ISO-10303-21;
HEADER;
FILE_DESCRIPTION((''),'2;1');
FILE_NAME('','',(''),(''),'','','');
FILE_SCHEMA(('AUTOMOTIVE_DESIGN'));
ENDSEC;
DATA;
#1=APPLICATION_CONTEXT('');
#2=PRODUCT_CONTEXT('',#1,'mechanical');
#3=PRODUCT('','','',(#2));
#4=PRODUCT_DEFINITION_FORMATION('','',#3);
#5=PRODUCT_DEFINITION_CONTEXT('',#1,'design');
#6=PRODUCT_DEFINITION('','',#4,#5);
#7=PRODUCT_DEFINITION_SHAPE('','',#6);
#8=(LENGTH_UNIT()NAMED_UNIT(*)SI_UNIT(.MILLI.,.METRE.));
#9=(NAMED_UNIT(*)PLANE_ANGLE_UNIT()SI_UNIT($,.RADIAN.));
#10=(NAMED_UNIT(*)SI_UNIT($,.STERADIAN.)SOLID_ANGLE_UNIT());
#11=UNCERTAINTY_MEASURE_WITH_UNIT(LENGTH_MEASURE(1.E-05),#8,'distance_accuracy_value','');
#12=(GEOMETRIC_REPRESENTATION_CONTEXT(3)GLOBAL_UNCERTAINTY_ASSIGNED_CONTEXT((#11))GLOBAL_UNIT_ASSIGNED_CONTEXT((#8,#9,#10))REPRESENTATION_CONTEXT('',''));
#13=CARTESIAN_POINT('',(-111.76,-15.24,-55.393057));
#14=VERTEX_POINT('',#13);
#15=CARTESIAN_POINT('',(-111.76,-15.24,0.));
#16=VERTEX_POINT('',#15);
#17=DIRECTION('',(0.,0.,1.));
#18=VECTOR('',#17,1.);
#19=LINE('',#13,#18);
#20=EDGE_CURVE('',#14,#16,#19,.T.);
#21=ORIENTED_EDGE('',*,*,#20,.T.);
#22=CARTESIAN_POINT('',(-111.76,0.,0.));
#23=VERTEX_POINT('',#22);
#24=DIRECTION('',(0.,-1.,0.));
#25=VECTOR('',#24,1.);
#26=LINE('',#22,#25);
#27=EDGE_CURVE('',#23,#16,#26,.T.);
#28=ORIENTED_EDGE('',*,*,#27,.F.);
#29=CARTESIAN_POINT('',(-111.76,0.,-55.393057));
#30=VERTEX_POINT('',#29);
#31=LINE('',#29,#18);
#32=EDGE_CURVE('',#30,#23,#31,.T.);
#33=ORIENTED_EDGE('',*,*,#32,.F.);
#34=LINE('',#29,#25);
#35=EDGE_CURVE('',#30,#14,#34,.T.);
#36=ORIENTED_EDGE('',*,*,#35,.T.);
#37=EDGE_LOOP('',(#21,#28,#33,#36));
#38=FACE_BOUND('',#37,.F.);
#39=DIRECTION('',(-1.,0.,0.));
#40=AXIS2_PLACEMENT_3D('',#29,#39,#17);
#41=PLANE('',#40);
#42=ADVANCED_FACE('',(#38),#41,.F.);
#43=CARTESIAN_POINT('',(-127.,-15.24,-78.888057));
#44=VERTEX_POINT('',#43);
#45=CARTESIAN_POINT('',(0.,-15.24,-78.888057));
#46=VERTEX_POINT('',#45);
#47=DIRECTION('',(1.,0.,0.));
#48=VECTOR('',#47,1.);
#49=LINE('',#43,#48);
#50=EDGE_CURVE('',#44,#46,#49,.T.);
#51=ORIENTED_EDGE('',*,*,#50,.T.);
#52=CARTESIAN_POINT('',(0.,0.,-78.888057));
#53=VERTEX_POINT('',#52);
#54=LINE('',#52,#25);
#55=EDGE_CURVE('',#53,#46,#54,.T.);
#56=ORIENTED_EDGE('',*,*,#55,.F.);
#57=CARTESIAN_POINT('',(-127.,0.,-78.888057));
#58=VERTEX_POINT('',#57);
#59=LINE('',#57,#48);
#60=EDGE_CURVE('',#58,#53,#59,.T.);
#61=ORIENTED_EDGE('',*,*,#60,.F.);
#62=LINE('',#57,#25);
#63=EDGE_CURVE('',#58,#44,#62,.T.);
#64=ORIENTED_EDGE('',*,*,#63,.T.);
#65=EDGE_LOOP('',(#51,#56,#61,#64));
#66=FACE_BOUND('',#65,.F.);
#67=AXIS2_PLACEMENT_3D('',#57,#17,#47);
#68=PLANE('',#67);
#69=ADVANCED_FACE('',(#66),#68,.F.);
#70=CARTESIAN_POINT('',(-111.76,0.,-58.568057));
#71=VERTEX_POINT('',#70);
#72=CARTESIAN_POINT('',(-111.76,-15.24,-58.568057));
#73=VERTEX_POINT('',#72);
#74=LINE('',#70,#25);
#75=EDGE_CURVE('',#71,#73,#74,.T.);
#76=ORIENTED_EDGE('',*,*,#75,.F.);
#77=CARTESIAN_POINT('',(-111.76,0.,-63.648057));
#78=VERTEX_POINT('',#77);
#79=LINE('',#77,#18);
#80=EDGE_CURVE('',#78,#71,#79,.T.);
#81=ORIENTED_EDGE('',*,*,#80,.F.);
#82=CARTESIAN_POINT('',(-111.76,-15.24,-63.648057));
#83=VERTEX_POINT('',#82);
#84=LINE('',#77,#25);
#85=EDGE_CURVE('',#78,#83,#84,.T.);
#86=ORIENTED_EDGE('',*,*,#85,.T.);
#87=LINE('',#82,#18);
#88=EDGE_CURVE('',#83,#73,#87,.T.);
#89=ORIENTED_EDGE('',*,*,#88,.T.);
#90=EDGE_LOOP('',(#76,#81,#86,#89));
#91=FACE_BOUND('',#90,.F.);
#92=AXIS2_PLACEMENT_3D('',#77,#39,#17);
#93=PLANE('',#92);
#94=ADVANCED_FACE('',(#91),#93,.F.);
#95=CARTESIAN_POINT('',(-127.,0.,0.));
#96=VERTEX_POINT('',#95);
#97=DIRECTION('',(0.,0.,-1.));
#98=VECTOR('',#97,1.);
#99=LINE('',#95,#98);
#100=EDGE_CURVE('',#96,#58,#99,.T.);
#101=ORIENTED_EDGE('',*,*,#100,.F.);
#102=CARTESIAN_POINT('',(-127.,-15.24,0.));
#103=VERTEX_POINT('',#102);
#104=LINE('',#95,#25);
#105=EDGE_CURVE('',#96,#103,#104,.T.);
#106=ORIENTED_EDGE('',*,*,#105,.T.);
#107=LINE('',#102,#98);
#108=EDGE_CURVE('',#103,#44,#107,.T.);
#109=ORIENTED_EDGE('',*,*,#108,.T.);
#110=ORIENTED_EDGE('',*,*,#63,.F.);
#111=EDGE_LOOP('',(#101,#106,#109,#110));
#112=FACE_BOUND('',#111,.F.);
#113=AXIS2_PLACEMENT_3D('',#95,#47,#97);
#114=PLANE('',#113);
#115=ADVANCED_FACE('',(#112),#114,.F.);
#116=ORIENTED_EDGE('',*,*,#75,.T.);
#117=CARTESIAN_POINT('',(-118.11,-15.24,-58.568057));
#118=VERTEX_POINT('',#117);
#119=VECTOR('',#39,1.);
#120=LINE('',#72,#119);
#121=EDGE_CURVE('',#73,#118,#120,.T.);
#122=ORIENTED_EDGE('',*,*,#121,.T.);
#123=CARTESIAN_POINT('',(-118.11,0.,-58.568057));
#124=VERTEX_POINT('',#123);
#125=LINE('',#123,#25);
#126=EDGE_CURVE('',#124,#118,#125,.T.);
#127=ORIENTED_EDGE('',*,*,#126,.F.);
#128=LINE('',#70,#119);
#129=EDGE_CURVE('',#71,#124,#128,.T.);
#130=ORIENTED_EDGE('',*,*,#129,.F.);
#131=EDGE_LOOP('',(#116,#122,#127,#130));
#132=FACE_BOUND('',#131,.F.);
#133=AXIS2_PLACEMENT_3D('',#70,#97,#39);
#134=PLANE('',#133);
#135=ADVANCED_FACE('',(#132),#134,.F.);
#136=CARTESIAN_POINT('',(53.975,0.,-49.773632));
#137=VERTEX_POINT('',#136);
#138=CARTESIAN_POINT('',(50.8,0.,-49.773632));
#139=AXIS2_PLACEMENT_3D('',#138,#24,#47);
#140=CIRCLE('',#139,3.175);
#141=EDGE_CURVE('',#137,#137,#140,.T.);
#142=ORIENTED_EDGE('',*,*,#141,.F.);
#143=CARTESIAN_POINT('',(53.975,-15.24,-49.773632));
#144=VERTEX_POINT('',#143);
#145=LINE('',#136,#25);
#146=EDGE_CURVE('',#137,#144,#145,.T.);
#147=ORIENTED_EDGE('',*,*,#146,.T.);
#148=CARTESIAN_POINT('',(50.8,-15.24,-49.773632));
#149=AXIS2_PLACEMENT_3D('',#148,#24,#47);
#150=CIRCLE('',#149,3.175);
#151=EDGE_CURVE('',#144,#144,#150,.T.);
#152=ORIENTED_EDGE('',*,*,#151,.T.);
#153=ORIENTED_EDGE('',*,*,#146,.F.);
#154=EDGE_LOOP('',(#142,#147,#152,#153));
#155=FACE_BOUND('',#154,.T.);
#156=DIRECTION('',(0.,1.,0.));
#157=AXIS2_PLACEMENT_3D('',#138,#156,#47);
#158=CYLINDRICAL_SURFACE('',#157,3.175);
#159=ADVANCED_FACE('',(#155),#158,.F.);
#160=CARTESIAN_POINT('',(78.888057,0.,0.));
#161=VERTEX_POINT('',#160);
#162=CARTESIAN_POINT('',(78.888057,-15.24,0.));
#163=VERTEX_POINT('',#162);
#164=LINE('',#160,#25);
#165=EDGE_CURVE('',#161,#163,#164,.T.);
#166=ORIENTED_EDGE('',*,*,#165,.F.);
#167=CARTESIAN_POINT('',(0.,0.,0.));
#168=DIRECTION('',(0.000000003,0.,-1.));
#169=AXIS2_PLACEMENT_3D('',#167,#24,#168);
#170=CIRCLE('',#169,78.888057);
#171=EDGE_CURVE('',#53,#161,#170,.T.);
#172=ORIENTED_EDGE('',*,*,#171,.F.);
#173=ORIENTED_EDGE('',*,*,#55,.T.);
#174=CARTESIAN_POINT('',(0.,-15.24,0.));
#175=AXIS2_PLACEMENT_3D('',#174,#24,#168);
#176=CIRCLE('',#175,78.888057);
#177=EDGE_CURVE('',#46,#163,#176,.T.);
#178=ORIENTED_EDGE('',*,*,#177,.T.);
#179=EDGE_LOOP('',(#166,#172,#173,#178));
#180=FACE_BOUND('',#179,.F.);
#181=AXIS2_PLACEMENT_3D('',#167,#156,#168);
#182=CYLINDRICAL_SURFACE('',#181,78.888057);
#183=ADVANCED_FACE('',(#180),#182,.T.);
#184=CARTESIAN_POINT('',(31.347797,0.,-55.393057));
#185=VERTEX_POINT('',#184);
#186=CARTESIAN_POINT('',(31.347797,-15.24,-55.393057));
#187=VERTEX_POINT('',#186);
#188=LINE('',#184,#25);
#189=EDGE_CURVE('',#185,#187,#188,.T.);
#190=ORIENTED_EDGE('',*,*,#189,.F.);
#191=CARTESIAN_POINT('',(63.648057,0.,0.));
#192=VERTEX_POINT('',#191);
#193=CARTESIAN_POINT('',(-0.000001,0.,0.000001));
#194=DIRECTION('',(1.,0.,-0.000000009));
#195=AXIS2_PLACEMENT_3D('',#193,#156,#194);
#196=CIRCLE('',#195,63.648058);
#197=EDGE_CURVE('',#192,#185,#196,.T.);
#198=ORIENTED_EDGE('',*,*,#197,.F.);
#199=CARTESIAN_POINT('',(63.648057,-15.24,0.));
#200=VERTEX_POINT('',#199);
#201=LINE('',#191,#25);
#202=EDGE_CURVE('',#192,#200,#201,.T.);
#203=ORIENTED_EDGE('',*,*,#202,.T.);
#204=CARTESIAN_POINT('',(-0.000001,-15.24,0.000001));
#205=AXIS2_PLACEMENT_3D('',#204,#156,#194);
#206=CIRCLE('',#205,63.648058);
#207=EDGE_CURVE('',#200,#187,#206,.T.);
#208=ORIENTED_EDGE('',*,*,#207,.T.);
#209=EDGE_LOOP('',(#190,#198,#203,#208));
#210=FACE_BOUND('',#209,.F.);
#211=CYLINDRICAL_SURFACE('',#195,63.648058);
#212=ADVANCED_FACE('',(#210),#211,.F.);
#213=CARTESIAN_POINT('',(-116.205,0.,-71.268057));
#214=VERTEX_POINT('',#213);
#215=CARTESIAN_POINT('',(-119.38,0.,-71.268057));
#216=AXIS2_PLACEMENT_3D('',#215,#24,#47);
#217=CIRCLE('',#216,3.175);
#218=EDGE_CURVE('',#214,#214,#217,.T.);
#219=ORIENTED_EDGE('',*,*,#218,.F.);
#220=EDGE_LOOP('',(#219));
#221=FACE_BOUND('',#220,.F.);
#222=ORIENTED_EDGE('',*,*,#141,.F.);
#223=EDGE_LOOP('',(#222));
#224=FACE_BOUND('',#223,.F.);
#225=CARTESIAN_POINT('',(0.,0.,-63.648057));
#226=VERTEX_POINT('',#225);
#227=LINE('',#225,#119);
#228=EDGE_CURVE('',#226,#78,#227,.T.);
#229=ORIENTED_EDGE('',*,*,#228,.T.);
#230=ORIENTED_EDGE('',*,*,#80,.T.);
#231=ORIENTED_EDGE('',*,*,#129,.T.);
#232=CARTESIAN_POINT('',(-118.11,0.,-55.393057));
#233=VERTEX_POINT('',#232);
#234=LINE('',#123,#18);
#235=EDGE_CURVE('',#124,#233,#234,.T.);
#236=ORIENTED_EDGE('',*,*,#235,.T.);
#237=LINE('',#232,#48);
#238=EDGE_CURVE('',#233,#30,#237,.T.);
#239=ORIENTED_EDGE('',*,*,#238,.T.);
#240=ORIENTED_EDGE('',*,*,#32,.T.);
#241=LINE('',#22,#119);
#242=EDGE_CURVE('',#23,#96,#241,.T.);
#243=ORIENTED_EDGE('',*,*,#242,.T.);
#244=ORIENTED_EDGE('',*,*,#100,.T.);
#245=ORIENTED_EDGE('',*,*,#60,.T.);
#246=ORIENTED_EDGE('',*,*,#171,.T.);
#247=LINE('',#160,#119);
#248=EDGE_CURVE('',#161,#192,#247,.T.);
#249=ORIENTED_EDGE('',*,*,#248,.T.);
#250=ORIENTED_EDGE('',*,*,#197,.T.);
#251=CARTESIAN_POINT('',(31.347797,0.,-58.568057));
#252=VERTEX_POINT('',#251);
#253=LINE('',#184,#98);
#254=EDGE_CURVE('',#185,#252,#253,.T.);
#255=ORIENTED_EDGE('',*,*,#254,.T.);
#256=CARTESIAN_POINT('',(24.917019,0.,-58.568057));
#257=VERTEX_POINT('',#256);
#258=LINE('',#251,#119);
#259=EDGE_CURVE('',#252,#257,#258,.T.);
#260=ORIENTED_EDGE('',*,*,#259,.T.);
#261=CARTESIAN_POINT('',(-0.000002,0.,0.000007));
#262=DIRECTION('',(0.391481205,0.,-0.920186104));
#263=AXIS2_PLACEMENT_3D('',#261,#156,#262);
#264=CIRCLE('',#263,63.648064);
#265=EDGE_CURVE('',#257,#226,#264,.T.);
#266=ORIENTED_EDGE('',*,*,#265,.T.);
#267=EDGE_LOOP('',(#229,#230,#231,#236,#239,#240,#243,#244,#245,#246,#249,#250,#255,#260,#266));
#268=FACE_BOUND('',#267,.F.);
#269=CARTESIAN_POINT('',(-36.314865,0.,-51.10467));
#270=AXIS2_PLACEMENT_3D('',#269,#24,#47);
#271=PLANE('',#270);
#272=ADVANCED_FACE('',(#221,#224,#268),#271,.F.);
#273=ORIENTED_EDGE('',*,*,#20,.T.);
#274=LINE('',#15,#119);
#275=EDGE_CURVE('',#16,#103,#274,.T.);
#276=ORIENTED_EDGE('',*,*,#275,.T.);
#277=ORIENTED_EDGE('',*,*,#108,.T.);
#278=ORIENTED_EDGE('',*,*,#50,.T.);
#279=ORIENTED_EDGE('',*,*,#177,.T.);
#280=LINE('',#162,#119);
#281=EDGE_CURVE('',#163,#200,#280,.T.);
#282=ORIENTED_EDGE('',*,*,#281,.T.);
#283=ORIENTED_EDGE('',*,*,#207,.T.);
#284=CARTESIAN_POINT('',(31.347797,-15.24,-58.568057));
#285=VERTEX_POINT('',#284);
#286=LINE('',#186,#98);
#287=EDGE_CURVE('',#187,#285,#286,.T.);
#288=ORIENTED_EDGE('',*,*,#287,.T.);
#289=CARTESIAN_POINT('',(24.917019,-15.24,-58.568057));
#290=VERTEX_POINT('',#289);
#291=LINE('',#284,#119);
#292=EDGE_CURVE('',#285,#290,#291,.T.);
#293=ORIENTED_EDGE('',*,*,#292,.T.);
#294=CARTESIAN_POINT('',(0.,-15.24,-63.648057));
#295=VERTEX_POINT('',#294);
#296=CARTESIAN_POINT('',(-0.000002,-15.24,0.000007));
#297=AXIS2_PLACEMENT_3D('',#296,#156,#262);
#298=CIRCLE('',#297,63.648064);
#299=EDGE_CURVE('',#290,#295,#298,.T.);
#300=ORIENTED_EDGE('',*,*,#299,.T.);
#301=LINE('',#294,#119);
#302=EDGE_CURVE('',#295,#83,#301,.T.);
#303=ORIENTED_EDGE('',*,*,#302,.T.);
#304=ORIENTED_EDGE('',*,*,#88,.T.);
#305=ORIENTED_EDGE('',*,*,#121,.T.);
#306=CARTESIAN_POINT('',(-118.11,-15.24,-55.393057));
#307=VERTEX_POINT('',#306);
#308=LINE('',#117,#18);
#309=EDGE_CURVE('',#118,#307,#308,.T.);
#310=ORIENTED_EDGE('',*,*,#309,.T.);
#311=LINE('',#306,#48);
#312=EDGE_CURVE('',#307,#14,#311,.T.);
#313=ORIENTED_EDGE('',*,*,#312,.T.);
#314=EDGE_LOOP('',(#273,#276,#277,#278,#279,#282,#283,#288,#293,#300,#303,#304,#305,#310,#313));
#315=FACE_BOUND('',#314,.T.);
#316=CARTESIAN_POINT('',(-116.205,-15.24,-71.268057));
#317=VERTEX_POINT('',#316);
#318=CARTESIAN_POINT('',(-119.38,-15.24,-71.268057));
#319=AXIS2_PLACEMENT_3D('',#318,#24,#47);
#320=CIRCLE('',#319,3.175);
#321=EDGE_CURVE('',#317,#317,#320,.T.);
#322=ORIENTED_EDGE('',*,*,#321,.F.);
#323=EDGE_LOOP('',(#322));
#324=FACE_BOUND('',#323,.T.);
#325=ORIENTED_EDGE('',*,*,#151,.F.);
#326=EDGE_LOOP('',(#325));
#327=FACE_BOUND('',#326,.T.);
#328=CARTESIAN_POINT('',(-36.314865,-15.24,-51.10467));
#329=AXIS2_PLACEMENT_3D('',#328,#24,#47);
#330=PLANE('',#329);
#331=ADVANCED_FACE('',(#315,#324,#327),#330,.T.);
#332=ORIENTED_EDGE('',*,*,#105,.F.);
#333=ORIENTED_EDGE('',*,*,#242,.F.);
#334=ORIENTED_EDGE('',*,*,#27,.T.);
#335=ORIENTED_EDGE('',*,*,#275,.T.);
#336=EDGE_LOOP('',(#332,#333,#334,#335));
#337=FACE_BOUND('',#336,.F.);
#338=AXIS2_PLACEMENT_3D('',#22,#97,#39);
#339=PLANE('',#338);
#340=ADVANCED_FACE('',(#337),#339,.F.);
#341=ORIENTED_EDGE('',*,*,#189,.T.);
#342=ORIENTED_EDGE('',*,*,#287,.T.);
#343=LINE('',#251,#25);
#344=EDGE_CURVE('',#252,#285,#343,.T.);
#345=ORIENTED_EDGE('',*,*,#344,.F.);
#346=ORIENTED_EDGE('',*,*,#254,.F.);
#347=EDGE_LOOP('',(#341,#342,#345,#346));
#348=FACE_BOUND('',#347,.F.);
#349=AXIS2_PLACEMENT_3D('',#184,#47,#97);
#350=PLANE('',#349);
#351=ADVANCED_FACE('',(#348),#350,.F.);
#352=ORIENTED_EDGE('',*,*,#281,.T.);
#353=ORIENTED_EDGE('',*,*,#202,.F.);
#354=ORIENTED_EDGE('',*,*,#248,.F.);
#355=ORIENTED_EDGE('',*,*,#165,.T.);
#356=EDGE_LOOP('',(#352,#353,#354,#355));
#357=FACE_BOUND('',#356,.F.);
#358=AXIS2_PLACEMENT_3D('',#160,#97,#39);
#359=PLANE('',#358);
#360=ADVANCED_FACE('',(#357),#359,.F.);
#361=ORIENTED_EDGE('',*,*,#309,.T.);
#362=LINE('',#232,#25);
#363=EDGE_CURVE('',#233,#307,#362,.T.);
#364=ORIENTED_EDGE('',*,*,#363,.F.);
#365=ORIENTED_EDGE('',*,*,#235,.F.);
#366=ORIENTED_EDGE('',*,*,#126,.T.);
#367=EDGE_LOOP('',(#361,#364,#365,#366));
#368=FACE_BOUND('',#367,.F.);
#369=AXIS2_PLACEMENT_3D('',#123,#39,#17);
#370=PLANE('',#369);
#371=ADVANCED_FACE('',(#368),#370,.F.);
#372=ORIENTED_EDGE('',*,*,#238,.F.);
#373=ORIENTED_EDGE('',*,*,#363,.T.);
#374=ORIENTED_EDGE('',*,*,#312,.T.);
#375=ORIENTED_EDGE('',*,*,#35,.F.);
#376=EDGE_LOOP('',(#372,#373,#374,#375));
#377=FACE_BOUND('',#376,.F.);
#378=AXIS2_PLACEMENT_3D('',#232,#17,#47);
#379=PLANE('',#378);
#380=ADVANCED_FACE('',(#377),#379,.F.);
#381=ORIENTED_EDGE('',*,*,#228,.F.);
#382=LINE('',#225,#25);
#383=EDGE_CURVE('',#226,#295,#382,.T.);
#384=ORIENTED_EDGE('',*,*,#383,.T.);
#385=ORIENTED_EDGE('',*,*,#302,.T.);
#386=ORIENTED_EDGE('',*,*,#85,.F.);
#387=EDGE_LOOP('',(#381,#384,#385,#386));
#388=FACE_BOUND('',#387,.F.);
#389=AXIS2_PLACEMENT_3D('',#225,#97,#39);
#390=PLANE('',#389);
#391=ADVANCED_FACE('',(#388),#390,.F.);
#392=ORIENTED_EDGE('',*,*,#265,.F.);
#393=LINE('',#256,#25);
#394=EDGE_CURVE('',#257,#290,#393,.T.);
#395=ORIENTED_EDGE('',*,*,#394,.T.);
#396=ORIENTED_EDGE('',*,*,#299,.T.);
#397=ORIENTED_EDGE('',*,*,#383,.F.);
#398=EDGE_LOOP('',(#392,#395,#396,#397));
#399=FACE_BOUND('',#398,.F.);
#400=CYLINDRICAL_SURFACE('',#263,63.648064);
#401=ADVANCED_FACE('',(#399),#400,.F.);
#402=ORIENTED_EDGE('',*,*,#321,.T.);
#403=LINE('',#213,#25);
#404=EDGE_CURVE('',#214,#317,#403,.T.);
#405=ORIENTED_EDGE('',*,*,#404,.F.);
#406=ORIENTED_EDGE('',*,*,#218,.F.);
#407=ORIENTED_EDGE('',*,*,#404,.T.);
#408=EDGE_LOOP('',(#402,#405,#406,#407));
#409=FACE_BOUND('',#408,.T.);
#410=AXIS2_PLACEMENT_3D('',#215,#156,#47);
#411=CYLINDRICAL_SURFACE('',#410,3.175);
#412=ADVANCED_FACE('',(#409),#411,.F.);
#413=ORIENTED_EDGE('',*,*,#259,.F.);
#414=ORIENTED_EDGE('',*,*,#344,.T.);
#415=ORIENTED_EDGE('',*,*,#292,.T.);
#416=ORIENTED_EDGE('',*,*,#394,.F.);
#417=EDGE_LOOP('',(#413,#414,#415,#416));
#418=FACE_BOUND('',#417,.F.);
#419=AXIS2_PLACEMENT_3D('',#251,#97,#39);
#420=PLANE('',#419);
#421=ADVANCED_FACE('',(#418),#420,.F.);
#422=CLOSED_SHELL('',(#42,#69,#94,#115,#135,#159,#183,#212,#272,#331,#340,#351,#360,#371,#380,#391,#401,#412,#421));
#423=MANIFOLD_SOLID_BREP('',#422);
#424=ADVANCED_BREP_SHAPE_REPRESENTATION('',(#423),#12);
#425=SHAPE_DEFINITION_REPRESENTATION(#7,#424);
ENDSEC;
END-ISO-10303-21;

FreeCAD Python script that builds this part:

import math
import FreeCAD as App
import Part
import Sketcher

V = App.Vector
Q = App.Units.Quantity

doc = App.newDocument("Part")
body = doc.addObject("PartDesign::Body", "Body")

# Sketch on XZ plane
sketch1 = body.newObject("Sketcher::SketchObject", "Sketch")
sketch1.AttachmentSupport = (doc.getObject("XZ_Plane"), [""])
sketch1.MapMode = "FlatFace"
sketch1.addGeometry([
    Part.LineSegment(V(-127, -78.9, 0), V(0, -78.9, 0)),  # 0
    Part.ArcOfCircle(Part.Circle(V(0, 0, 0), V(0, 0, 1), 78.9), math.radians(-90), math.radians(0)),  # 1
    Part.LineSegment(V(78.9, 0, 0), V(63.6, 0, 0)),  # 2
    Part.ArcOfCircle(Part.Circle(V(0, 0, 0), V(0, 0, 1), 63.6), math.radians(-60), math.radians(0)),  # 3
    Part.LineSegment(V(31.3, -55.4, 0), V(31.3, -58.6, 0)),  # 4
    Part.LineSegment(V(31.3, -58.6, 0), V(24.9, -58.6, 0)),  # 5
    Part.ArcOfCircle(Part.Circle(V(0, 0, 0), V(0, 0, 1), 63.6), math.radians(-90), math.radians(-67)),  # 6
    Part.LineSegment(V(0, -63.6, 0), V(-111.8, -63.6, 0)),  # 7
    Part.LineSegment(V(-111.8, -63.6, 0), V(-111.8, -58.6, 0)),  # 8
    Part.LineSegment(V(-111.8, -58.6, 0), V(-118.1, -58.6, 0)),  # 9
    Part.LineSegment(V(-118.1, -58.6, 0), V(-118.1, -55.4, 0)),  # 10
    Part.LineSegment(V(-118.1, -55.4, 0), V(-111.8, -55.4, 0)),  # 11
    Part.LineSegment(V(-111.8, -55.4, 0), V(-111.8, 0, 0)),  # 12
    Part.LineSegment(V(-111.8, 0, 0), V(-127, 0, 0)),  # 13
    Part.LineSegment(V(-127, 0, 0), V(-127, -78.9, 0)),  # 14
    Part.Circle(V(-119.4, -71.3, 0), V(0, 0, 1), 3.2),  # 15
    Part.Circle(V(50.8, -49.8, 0), V(0, 0, 1), 3.2),  # 16
], False)
sketch1.addConstraint([
    Sketcher.Constraint("Tangent", 0, 2, 1, 1),
    Sketcher.Constraint("Coincident", 1, 2, 2, 1),
    Sketcher.Constraint("Coincident", 2, 2, 3, 2),
    Sketcher.Constraint("Coincident", 3, 1, 4, 1),
    Sketcher.Constraint("Coincident", 4, 2, 5, 1),
    Sketcher.Constraint("Coincident", 5, 2, 6, 2),
    Sketcher.Constraint("Tangent", 6, 1, 7, 1),
    Sketcher.Constraint("Coincident", 7, 2, 8, 1),
    Sketcher.Constraint("Coincident", 8, 2, 9, 1),
    Sketcher.Constraint("Coincident", 9, 2, 10, 1),
    Sketcher.Constraint("Coincident", 10, 2, 11, 1),
    Sketcher.Constraint("Coincident", 11, 2, 12, 1),
    Sketcher.Constraint("Coincident", 12, 2, 13, 1),
    Sketcher.Constraint("Coincident", 13, 2, 14, 1),
    Sketcher.Constraint("Coincident", 14, 2, 0, 1),
    Sketcher.Constraint("Horizontal", 0),
    Sketcher.Constraint("Horizontal", 2),
    Sketcher.Constraint("Vertical", 4),
    Sketcher.Constraint("Horizontal", 5),
    Sketcher.Constraint("Horizontal", 7),
    Sketcher.Constraint("Vertical", 8),
    Sketcher.Constraint("Horizontal", 9),
    Sketcher.Constraint("Vertical", 10),
    Sketcher.Constraint("Horizontal", 11),
    Sketcher.Constraint("Vertical", 12),
    Sketcher.Constraint("Horizontal", 13),
    Sketcher.Constraint("Vertical", 14),
    Sketcher.Constraint("Coincident", 1, 3, -1, 1),
    Sketcher.Constraint("Coincident", 3, 3, -1, 1),
    Sketcher.Constraint("Coincident", 6, 3, -1, 1),
    Sketcher.Constraint("Equal", 15, 16),
    Sketcher.Constraint("PointOnObject", 1, 2, -1),
    Sketcher.Constraint("PointOnObject", 12, 2, -1),
    Sketcher.Constraint("Horizontal", 5, 2, 8, 2),
    Sketcher.Constraint("Horizontal", 3, 1, 10, 2),
    Sketcher.Constraint("Vertical", 8, 2, 11, 2),
    Sketcher.Constraint("Equal", 2, 13),
    Sketcher.Constraint("Diameter", 15, Q("0.25 in")),
    Sketcher.Constraint("DistanceX", 0, 1, 0, 2, Q("5 in")),
    Sketcher.Constraint("DistanceX", 2, 2, 2, 1, Q("0.6 in")),
    Sketcher.Constraint("DistanceY", 8, 1, 8, 2, Q("0.2 in")),
    Sketcher.Constraint("DistanceX", -1, 1, 16, 3, Q("2 in")),
    Sketcher.Constraint("DistanceX", 9, 2, 9, 1, Q("0.25 in")),
    Sketcher.Constraint("DistanceX", 15, 3, -1, 1, Q("4.7 in")),
    Sketcher.Constraint("DistanceY", 0, 2, 15, 3, Q("0.3 in")),
    Sketcher.Constraint("DistanceY", 0, 2, 4, 2, Q("0.8 in")),
    Sketcher.Constraint("DistanceY", 4, 2, 4, 1, Q("0.125 in")),
    Sketcher.Constraint("Radius", 1, Q("78.888057 mm")),
    Sketcher.Constraint("DistanceY", 16, 3, 6, 3, Q("49.773639 mm")),
])
pad1 = body.newObject("PartDesign::Pad", "Pad")
pad1.Profile = sketch1
pad1.Length = Q("0.6 in")

doc.recompute()
